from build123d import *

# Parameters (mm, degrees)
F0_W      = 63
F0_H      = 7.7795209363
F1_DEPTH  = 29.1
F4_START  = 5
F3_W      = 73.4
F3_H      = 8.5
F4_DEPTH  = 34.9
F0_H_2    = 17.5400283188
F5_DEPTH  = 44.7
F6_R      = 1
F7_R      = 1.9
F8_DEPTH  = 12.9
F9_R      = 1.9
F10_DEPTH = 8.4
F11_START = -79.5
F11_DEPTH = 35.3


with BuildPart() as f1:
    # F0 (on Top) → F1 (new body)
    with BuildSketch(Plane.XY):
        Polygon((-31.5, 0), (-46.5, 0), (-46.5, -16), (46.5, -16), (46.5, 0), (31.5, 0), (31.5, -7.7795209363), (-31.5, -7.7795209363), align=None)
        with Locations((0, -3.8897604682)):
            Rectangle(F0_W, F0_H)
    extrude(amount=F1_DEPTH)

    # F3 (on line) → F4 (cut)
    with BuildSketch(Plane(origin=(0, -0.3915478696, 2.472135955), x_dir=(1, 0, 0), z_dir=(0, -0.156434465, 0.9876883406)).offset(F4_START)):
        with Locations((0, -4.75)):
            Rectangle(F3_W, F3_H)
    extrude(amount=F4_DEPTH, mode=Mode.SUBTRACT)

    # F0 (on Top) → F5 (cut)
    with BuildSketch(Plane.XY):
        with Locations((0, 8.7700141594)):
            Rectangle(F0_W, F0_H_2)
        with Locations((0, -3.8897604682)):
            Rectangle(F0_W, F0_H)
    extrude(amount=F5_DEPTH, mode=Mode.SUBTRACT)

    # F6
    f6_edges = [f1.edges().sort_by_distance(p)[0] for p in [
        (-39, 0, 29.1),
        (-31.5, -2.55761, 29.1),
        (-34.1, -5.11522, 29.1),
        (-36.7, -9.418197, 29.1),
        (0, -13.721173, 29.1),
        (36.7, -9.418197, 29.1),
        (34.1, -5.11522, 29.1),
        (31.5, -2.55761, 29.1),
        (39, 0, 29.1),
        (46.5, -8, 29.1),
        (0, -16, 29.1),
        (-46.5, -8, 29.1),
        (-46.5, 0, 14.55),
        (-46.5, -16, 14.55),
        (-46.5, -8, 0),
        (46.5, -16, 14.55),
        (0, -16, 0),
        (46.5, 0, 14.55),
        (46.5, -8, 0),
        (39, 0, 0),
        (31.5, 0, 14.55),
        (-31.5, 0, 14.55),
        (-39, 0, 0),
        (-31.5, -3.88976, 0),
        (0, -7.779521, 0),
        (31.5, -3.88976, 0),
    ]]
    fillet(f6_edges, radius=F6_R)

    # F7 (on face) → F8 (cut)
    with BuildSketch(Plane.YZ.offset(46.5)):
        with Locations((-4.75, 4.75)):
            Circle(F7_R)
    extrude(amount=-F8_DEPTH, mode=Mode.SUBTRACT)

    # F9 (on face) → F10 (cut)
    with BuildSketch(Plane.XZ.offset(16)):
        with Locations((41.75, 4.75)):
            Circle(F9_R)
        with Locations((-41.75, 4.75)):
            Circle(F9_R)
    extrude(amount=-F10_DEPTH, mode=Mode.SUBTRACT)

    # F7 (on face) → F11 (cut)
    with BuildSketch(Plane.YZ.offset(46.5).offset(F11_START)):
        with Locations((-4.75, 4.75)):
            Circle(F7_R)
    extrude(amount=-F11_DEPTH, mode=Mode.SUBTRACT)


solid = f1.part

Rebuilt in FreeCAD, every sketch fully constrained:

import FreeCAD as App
import Part
import Sketcher

V = App.Vector


def edges_at(feature, points):
    """Names of the edges that pass closest to the given points."""
    edges = feature.Shape.Edges
    near = lambda p: min(range(len(edges)), key=lambda i: edges[i].distToShape(Part.Vertex(*p))[0])
    return sorted({f"Edge{near(p) + 1}" for p in points})


def add_polygon(sketch, points):
    """Adds a closed chain of lines whose ends are joined by coincident constraints."""
    first, n = sketch.GeometryCount, len(points)
    for a, b in zip(points, points[1:] + points[:1]):
        sketch.addGeometry(Part.LineSegment(App.Vector(*a, 0), App.Vector(*b, 0)), False)
    for i in range(n):
        sketch.addConstraint(Sketcher.Constraint("Coincident", first + i, 2, first + (i + 1) % n, 1))

doc = App.newDocument("Part")
params = doc.addObject("Spreadsheet::Sheet", "Params")
for row, (alias, value) in enumerate([
    ("sketch1_width", "93 mm"),
    ("sketch1_height", "16 mm"),
    ("pad1_length", "29.1 mm"),
    ("sketch2_width", "73.4 mm"),
    ("sketch2_height", "8.5 mm"),
    ("pocket1_length", "34.9 mm"),
    ("sketch3_width", "63 mm"),
    ("pocket2_length", "44.7 mm"),
    ("fillet_radius", "1 mm"),
    ("sketch4_diameter", "3.8 mm"),
    ("pocket3_length", "12.9 mm"),
    ("sketch5_diameter", "3.8 mm"),
    ("pocket4_length", "8.4 mm"),
    ("sketch6_diameter", "3.8 mm"),
    ("pocket5_length", "35.3 mm"),
], start=1):
    params.set(f"A{row}", alias)
    params.set(f"B{row}", "=" + value)
    params.setAlias(f"B{row}", alias)

body = doc.addObject("PartDesign::Body", "Body")

sketch1 = body.newObject("Sketcher::SketchObject", "Sketch")
sketch1.AttachmentSupport = (doc.getObject("XY_Plane"), [""])
sketch1.MapMode = "FlatFace"
add_polygon(sketch1, [(-46.5, 0), (-46.5, -16), (46.5, -16), (46.5, 0)])
sketch1.addConstraint([
    Sketcher.Constraint("Vertical", 0),
    Sketcher.Constraint("Horizontal", 1),
    Sketcher.Constraint("Vertical", 2),
    Sketcher.Constraint("Horizontal", 3),
    Sketcher.Constraint("Symmetric", 2, 2, 3, 2, -1, 1),
    Sketcher.Constraint("DistanceX", 1, 1, 1, 2, 93.0),
    Sketcher.Constraint("DistanceY", 0, 2, 0, 1, 16.0),
])
sketch1.setExpression("Constraints[9]", "Params.sketch1_width")
sketch1.setExpression("Constraints[10]", "Params.sketch1_height")
pad1 = body.newObject("PartDesign::Pad", "Pad")
pad1.Profile = sketch1
pad1.setExpression("Length", "Params.pad1_length")

sketch2 = body.newObject("Sketcher::SketchObject", "Sketch001")
sketch2.Placement = App.Placement(V(0, -1.17372, 7.410578), App.Rotation(V(1, 0, 0), V(0, 0.987688341, 0.156434465), V(0, -0.156434465, 0.987688341), "ZXY"))
add_polygon(sketch2, [(-36.7, -0.5), (-36.7, -9), (36.7, -9), (36.7, -0.5)])
sketch2.addConstraint([
    Sketcher.Constraint("Vertical", 0),
    Sketcher.Constraint("Horizontal", 1),
    Sketcher.Constraint("Vertical", 2),
    Sketcher.Constraint("Horizontal", 3),
    Sketcher.Constraint("DistanceX", 1, 1, 1, 2, 73.4),
    Sketcher.Constraint("DistanceY", 0, 2, 0, 1, 8.5),
    Sketcher.Constraint("DistanceY", 0, 2, -1, 1, 9.0),
    Sketcher.Constraint("DistanceX", 0, 2, -1, 1, 36.7),
])
sketch2.setExpression("Constraints[8]", "Params.sketch2_width")
sketch2.setExpression("Constraints[9]", "Params.sketch2_height")
pocket1 = body.newObject("PartDesign::Pocket", "Pocket")
pocket1.Profile = sketch2
pocket1.setExpression("Length", "Params.pocket1_length")
pocket1.Reversed = True

sketch3 = body.newObject("Sketcher::SketchObject", "Sketch002")
sketch3.AttachmentSupport = (doc.getObject("XY_Plane"), [""])
sketch3.MapMode = "FlatFace"
add_polygon(sketch3, [(-31.5, 17.540028), (-31.5, -7.779521), (31.5, -7.779521), (31.5, 17.540028)])
sketch3.addConstraint([
    Sketcher.Constraint("Vertical", 0),
    Sketcher.Constraint("Horizontal", 1),
    Sketcher.Constraint("Vertical", 2),
    Sketcher.Constraint("Horizontal", 3),
    Sketcher.Constraint("DistanceX", 1, 1, 1, 2, 63.0),
    Sketcher.Constraint("DistanceX", 0, 2, -1, 1, 31.5),
    Sketcher.Constraint("DistanceY", 0, 2, 0, 1, 25.319549),
    Sketcher.Constraint("DistanceY", 0, 2, -1, 1, 7.779521),
])
sketch3.setExpression("Constraints[8]", "Params.sketch3_width")
pocket2 = body.newObject("PartDesign::Pocket", "Pocket001")
pocket2.Profile = sketch3
pocket2.setExpression("Length", "Params.pocket2_length")
pocket2.Reversed = True
doc.recompute()

fillet = body.newObject("PartDesign::Fillet", "Fillet")
fillet.Base = (pocket2, edges_at(pocket2, [
    (-39, 0, 29.1),
    (-31.5, -2.558, 29.1),
    (-34.1, -5.115, 29.1),
    (-36.7, -9.418, 29.1),
    (0, -13.721, 29.1),
    (36.7, -9.418, 29.1),
    (34.1, -5.115, 29.1),
    (31.5, -2.558, 29.1),
    (39, 0, 29.1),
    (46.5, -8, 29.1),
    (0, -16, 29.1),
    (-46.5, -8, 29.1),
    (-46.5, 0, 14.55),
    (-46.5, -16, 14.55),
    (-46.5, -8, 0),
    (46.5, -16, 14.55),
    (0, -16, 0),
    (46.5, 0, 14.55),
    (46.5, -8, 0),
    (39, 0, 0),
    (31.5, 0, 14.55),
    (-31.5, 0, 14.55),
    (-39, 0, 0),
    (-31.5, -3.89, 0),
    (0, -7.78, 0),
    (31.5, -3.89, 0),
]))
fillet.setExpression("Radius", "Params.fillet_radius")

sketch4 = body.newObject("Sketcher::SketchObject", "Sketch003")
sketch4.AttachmentSupport = (doc.getObject("YZ_Plane"), [""])
sketch4.MapMode = "FlatFace"
sketch4.AttachmentOffset = App.Placement(V(0, 0, 46.5), App.Rotation())
sketch4.addGeometry(Part.Circle(V(-4.75, 4.75, 0), V(0, 0, 1), 1.9), False)
sketch4.addConstraint([
    Sketcher.Constraint("Diameter", 0, 3.8),
    Sketcher.Constraint("DistanceX", 0, 3, -1, 1, 4.75),
    Sketcher.Constraint("DistanceY", -1, 1, 0, 3, 4.75),
])
sketch4.setExpression("Constraints[0]", "Params.sketch4_diameter")
pocket3 = body.newObject("PartDesign::Pocket", "Pocket002")
pocket3.Profile = sketch4
pocket3.setExpression("Length", "Params.pocket3_length")

sketch5 = body.newObject("Sketcher::SketchObject", "Sketch004")
sketch5.AttachmentSupport = (doc.getObject("XZ_Plane"), [""])
sketch5.MapMode = "FlatFace"
sketch5.AttachmentOffset = App.Placement(V(0, 0, 16), App.Rotation())
sketch5.addGeometry([
    Part.Circle(V(41.75, 4.75, 0), V(0, 0, 1), 1.9),
    Part.Circle(V(-41.75, 4.75, 0), V(0, 0, 1), 1.9),
], False)
sketch5.addConstraint([
    Sketcher.Constraint("Equal", 0, 1),
    Sketcher.Constraint("Symmetric", 0, 3, 1, 3, -2),
    Sketcher.Constraint("Diameter", 0, 3.8),
    Sketcher.Constraint("DistanceX", 1, 3, 0, 3, 83.5),
    Sketcher.Constraint("DistanceY", -1, 1, 0, 3, 4.75),
])
sketch5.setExpression("Constraints[2]", "Params.sketch5_diameter")
pocket4 = body.newObject("PartDesign::Pocket", "Pocket003")
pocket4.Profile = sketch5
pocket4.setExpression("Length", "Params.pocket4_length")

sketch6 = body.newObject("Sketcher::SketchObject", "Sketch005")
sketch6.AttachmentSupport = (doc.getObject("YZ_Plane"), [""])
sketch6.MapMode = "FlatFace"
sketch6.AttachmentOffset = App.Placement(V(0, 0, -33), App.Rotation())
sketch6.addGeometry(Part.Circle(V(-4.75, 4.75, 0), V(0, 0, 1), 1.9), False)
sketch6.addConstraint([
    Sketcher.Constraint("Diameter", 0, 3.8),
    Sketcher.Constraint("DistanceX", 0, 3, -1, 1, 4.75),
    Sketcher.Constraint("DistanceY", -1, 1, 0, 3, 4.75),
])
sketch6.setExpression("Constraints[0]", "Params.sketch6_diameter")
pocket5 = body.newObject("PartDesign::Pocket", "Pocket004")
pocket5.Profile = sketch6
pocket5.setExpression("Length", "Params.pocket5_length")

doc.recompute()
